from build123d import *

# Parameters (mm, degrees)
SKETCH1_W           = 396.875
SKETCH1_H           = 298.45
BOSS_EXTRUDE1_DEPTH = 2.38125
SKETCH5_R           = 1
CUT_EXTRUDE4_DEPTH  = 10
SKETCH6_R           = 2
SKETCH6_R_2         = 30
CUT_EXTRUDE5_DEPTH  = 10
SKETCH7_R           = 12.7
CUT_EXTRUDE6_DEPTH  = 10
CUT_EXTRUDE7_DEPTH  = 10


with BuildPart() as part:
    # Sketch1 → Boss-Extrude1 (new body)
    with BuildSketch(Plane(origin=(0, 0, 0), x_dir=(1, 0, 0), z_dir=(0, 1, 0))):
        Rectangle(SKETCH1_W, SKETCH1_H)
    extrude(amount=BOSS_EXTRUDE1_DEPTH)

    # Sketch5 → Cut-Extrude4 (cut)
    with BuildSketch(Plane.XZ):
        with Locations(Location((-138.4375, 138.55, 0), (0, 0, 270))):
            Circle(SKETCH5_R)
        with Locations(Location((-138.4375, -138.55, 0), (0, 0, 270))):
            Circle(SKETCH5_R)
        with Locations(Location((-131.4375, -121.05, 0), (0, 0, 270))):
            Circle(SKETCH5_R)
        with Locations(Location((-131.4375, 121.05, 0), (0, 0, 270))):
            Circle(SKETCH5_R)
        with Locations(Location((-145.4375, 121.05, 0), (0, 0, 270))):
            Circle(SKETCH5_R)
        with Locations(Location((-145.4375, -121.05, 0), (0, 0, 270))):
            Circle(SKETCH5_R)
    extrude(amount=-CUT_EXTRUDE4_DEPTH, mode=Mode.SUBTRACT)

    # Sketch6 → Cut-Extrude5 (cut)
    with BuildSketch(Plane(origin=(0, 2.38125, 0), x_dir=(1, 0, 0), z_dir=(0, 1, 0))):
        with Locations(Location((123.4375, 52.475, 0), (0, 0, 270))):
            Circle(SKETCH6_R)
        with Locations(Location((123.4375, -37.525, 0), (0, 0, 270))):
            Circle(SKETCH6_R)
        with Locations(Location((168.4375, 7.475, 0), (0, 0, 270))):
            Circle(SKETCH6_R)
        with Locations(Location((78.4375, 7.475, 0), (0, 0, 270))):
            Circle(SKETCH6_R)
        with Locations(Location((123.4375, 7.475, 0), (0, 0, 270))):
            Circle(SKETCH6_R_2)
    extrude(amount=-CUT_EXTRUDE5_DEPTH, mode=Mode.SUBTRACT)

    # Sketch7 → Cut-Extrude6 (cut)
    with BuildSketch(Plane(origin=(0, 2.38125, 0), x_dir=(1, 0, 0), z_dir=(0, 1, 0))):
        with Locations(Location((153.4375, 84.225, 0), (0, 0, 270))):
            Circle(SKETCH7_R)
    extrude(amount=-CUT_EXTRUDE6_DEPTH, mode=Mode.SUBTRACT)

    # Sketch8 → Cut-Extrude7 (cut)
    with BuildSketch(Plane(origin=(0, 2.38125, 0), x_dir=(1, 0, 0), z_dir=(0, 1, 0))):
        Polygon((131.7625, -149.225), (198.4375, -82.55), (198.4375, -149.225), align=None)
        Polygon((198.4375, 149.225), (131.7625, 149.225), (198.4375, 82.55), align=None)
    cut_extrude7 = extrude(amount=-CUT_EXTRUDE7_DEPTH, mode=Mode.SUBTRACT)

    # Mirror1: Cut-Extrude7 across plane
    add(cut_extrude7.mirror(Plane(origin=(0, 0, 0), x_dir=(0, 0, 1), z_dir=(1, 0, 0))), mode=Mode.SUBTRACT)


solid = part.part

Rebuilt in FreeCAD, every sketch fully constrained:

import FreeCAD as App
import Part
import Sketcher

V = App.Vector
Q = App.Units.Quantity


def add_polygon(sketch, points):
    """Adds a closed chain of lines whose ends are joined by coincident constraints."""
    first, n = sketch.GeometryCount, len(points)
    for a, b in zip(points, points[1:] + points[:1]):
        sketch.addGeometry(Part.LineSegment(App.Vector(*a, 0), App.Vector(*b, 0)), False)
    for i in range(n):
        sketch.addConstraint(Sketcher.Constraint("Coincident", first + i, 2, first + (i + 1) % n, 1))

doc = App.newDocument("Part")
body = doc.addObject("PartDesign::Body", "Body")

# Sketch on XZ plane
sketch1 = doc.addObject("Sketcher::SketchObject", "Sketch")
body.addObject(sketch1)
sketch1.AttachmentSupport = (doc.XZ_Plane, [""])
sketch1.MapMode = "FlatFace"
add_polygon(sketch1, [(-198, -149), (-198, 149), (198, 149), (198, -149)])  # lines 0-3
sketch1.addConstraint(Sketcher.Constraint("Vertical", 0))
sketch1.addConstraint(Sketcher.Constraint("Horizontal", 1))
sketch1.addConstraint(Sketcher.Constraint("Vertical", 2))
sketch1.addConstraint(Sketcher.Constraint("Horizontal", 3))
sketch1.addConstraint(Sketcher.Constraint("Symmetric", 0, 2, 2, 2, -1, 1))
sketch1.addConstraint(Sketcher.Constraint("DistanceY", 0, 1, 0, 2, Q("11.75 in")))
sketch1.addConstraint(Sketcher.Constraint("DistanceX", 1, 1, 1, 2, Q("15.625 in")))
pad1 = doc.addObject("PartDesign::Pad", "Pad")
body.addObject(pad1)
pad1.Profile = sketch1
pad1.Length = Q("0.09375 in")
pad1.Reversed = True

# Sketch on XZ plane
sketch2 = doc.addObject("Sketcher::SketchObject", "Sketch001")
body.addObject(sketch2)
sketch2.AttachmentSupport = (doc.XZ_Plane, [""])
sketch2.MapMode = "FlatFace"
sketch2.addGeometry(Part.Circle(V(-138.4, 138.6, 0), V(0, 0, 1), 1), False)
sketch2.addGeometry(Part.Circle(V(-138.4, -138.6, 0), V(0, 0, 1), 1), False)
sketch2.addGeometry(Part.Circle(V(-131.4, -121, 0), V(0, 0, 1), 1), False)
sketch2.addGeometry(Part.Circle(V(-131.4, 121, 0), V(0, 0, 1), 1), False)
sketch2.addGeometry(Part.Circle(V(-145.4, 121, 0), V(0, 0, 1), 1), False)
sketch2.addGeometry(Part.Circle(V(-145.4, -121, 0), V(0, 0, 1), 1), False)
sketch2.addConstraint(Sketcher.Constraint("Equal", 0, 1))
sketch2.addConstraint(Sketcher.Constraint("Equal", 1, 2))
sketch2.addConstraint(Sketcher.Constraint("Equal", 2, 3))
sketch2.addConstraint(Sketcher.Constraint("Equal", 3, 4))
sketch2.addConstraint(Sketcher.Constraint("Equal", 4, 5))
sketch2.addConstraint(Sketcher.Constraint("Symmetric", 0, 3, 1, 3, -1))
sketch2.addConstraint(Sketcher.Constraint("Symmetric", 2, 3, 3, 3, -1))
sketch2.addConstraint(Sketcher.Constraint("Symmetric", 4, 3, 5, 3, -1))
sketch2.addConstraint(Sketcher.Constraint("Horizontal", 3, 3, 4, 3))
sketch2.addConstraint(Sketcher.Constraint("Diameter", 0, Q("2 mm")))
sketch2.addConstraint(Sketcher.Constraint("DistanceX", 0, 3, -1, 1, Q("138.4375 mm")))
sketch2.addConstraint(Sketcher.Constraint("DistanceY", -1, 1, 0, 3, Q("138.55 mm")))
sketch2.addConstraint(Sketcher.Constraint("DistanceX", 2, 3, -1, 1, Q("131.4375 mm")))
sketch2.addConstraint(Sketcher.Constraint("DistanceY", 2, 3, -1, 1, Q("121.05 mm")))
sketch2.addConstraint(Sketcher.Constraint("DistanceX", 4, 3, -1, 1, Q("145.4375 mm")))
pocket1 = doc.addObject("PartDesign::Pocket", "Pocket")
body.addObject(pocket1)
pocket1.Profile = sketch2
pocket1.Length = 10

# Sketch on XZ plane
sketch3 = doc.addObject("Sketcher::SketchObject", "Sketch002")
body.addObject(sketch3)
sketch3.AttachmentSupport = (doc.XZ_Plane, [""])
sketch3.MapMode = "FlatFace"
sketch3.AttachmentOffset = App.Placement(V(0, 0, -0.09375 * 25.4), App.Rotation())
sketch3.addGeometry(Part.Circle(V(123.4, -52.5, 0), V(0, 0, 1), 2), False)
sketch3.addGeometry(Part.Circle(V(123.4, 37.5, 0), V(0, 0, 1), 2), False)
sketch3.addGeometry(Part.Circle(V(168.4, -7.5, 0), V(0, 0, 1), 2), False)
sketch3.addGeometry(Part.Circle(V(78.4, -7.5, 0), V(0, 0, 1), 2), False)
sketch3.addGeometry(Part.Circle(V(123.4, -7.5, 0), V(0, 0, 1), 30), False)
sketch3.addConstraint(Sketcher.Constraint("Equal", 0, 1))
sketch3.addConstraint(Sketcher.Constraint("Equal", 1, 2))
sketch3.addConstraint(Sketcher.Constraint("Equal", 2, 3))
sketch3.addConstraint(Sketcher.Constraint("Horizontal", 2, 3, 3, 3))
sketch3.addConstraint(Sketcher.Constraint("Horizontal", 3, 3, 4, 3))
sketch3.addConstraint(Sketcher.Constraint("Vertical", 0, 3, 1, 3))
sketch3.addConstraint(Sketcher.Constraint("Vertical", 1, 3, 4, 3))
sketch3.addConstraint(Sketcher.Constraint("Diameter", 0, Q("4 mm")))
sketch3.addConstraint(Sketcher.Constraint("Diameter", 4, Q("60 mm")))
sketch3.addConstraint(Sketcher.Constraint("DistanceX", -1, 1, 0, 3, Q("123.4375 mm")))
sketch3.addConstraint(Sketcher.Constraint("DistanceY", 0, 3, -1, 1, Q("52.475 mm")))
sketch3.addConstraint(Sketcher.Constraint("DistanceY", -1, 1, 1, 3, Q("37.525 mm")))
sketch3.addConstraint(Sketcher.Constraint("DistanceX", -1, 1, 2, 3, Q("168.4375 mm")))
sketch3.addConstraint(Sketcher.Constraint("DistanceY", 2, 3, -1, 1, Q("7.475 mm")))
sketch3.addConstraint(Sketcher.Constraint("DistanceX", -1, 1, 3, 3, Q("78.4375 mm")))
pocket2 = doc.addObject("PartDesign::Pocket", "Pocket001")
body.addObject(pocket2)
pocket2.Profile = sketch3
pocket2.Length = 10
pocket2.Reversed = True

# Sketch on XZ plane
sketch4 = doc.addObject("Sketcher::SketchObject", "Sketch003")
body.addObject(sketch4)
sketch4.AttachmentSupport = (doc.XZ_Plane, [""])
sketch4.MapMode = "FlatFace"
sketch4.AttachmentOffset = App.Placement(V(0, 0, -0.09375 * 25.4), App.Rotation())
sketch4.addGeometry(Part.Circle(V(153, -84, 0), V(0, 0, 1), 13), False)
sketch4.addConstraint(Sketcher.Constraint("Diameter", 0, Q("1 in")))
sketch4.addConstraint(Sketcher.Constraint("DistanceX", -1, 1, 0, 3, Q("153.4375 mm")))
sketch4.addConstraint(Sketcher.Constraint("DistanceY", 0, 3, -1, 1, Q("84.225 mm")))
pocket3 = doc.addObject("PartDesign::Pocket", "Pocket002")
body.addObject(pocket3)
pocket3.Profile = sketch4
pocket3.Length = 10
pocket3.Reversed = True

# Sketch on XZ plane
sketch5 = doc.addObject("Sketcher::SketchObject", "Sketch004")
body.addObject(sketch5)
sketch5.AttachmentSupport = (doc.XZ_Plane, [""])
sketch5.MapMode = "FlatFace"
sketch5.AttachmentOffset = App.Placement(V(0, 0, -0.09375 * 25.4), App.Rotation())
add_polygon(sketch5, [(198, 83), (132, 149), (198, 149)])  # lines 0-2
add_polygon(sketch5, [(198, -149), (132, -149), (198, -83)])  # lines 3-5
sketch5.addConstraint(Sketcher.Constraint("Horizontal", 1))
sketch5.addConstraint(Sketcher.Constraint("Vertical", 2))
sketch5.addConstraint(Sketcher.Constraint("Horizontal", 3))
sketch5.addConstraint(Sketcher.Constraint("Vertical", 5))
sketch5.addConstraint(Sketcher.Constraint("Symmetric", 0, 2, 3, 2, -1))
sketch5.addConstraint(Sketcher.Constraint("Symmetric", 2, 2, 4, 2, -1))
sketch5.addConstraint(Sketcher.Constraint("Perpendicular", 0, 4))
sketch5.addConstraint(Sketcher.Constraint("DistanceY", 4, 2, 2, 2, Q("6.5 in")))
sketch5.addConstraint(Sketcher.Constraint("DistanceX", 1, 1, 1, 2, Q("2.625 in")))
sketch5.addConstraint(Sketcher.Constraint("DistanceX", -1, 1, 0, 2, Q("5.1875 in")))
pocket4 = doc.addObject("PartDesign::Pocket", "Pocket003")
body.addObject(pocket4)
pocket4.Profile = sketch5
pocket4.Length = 10
pocket4.Reversed = True
doc.recompute()

mirrored = doc.addObject("PartDesign::Mirrored", "Mirrored")
body.addObject(mirrored)
mirrored.Originals = [pocket4]
mirrored.MirrorPlane = (doc.YZ_Plane, [""])
body.Tip = mirrored

doc.recompute()
